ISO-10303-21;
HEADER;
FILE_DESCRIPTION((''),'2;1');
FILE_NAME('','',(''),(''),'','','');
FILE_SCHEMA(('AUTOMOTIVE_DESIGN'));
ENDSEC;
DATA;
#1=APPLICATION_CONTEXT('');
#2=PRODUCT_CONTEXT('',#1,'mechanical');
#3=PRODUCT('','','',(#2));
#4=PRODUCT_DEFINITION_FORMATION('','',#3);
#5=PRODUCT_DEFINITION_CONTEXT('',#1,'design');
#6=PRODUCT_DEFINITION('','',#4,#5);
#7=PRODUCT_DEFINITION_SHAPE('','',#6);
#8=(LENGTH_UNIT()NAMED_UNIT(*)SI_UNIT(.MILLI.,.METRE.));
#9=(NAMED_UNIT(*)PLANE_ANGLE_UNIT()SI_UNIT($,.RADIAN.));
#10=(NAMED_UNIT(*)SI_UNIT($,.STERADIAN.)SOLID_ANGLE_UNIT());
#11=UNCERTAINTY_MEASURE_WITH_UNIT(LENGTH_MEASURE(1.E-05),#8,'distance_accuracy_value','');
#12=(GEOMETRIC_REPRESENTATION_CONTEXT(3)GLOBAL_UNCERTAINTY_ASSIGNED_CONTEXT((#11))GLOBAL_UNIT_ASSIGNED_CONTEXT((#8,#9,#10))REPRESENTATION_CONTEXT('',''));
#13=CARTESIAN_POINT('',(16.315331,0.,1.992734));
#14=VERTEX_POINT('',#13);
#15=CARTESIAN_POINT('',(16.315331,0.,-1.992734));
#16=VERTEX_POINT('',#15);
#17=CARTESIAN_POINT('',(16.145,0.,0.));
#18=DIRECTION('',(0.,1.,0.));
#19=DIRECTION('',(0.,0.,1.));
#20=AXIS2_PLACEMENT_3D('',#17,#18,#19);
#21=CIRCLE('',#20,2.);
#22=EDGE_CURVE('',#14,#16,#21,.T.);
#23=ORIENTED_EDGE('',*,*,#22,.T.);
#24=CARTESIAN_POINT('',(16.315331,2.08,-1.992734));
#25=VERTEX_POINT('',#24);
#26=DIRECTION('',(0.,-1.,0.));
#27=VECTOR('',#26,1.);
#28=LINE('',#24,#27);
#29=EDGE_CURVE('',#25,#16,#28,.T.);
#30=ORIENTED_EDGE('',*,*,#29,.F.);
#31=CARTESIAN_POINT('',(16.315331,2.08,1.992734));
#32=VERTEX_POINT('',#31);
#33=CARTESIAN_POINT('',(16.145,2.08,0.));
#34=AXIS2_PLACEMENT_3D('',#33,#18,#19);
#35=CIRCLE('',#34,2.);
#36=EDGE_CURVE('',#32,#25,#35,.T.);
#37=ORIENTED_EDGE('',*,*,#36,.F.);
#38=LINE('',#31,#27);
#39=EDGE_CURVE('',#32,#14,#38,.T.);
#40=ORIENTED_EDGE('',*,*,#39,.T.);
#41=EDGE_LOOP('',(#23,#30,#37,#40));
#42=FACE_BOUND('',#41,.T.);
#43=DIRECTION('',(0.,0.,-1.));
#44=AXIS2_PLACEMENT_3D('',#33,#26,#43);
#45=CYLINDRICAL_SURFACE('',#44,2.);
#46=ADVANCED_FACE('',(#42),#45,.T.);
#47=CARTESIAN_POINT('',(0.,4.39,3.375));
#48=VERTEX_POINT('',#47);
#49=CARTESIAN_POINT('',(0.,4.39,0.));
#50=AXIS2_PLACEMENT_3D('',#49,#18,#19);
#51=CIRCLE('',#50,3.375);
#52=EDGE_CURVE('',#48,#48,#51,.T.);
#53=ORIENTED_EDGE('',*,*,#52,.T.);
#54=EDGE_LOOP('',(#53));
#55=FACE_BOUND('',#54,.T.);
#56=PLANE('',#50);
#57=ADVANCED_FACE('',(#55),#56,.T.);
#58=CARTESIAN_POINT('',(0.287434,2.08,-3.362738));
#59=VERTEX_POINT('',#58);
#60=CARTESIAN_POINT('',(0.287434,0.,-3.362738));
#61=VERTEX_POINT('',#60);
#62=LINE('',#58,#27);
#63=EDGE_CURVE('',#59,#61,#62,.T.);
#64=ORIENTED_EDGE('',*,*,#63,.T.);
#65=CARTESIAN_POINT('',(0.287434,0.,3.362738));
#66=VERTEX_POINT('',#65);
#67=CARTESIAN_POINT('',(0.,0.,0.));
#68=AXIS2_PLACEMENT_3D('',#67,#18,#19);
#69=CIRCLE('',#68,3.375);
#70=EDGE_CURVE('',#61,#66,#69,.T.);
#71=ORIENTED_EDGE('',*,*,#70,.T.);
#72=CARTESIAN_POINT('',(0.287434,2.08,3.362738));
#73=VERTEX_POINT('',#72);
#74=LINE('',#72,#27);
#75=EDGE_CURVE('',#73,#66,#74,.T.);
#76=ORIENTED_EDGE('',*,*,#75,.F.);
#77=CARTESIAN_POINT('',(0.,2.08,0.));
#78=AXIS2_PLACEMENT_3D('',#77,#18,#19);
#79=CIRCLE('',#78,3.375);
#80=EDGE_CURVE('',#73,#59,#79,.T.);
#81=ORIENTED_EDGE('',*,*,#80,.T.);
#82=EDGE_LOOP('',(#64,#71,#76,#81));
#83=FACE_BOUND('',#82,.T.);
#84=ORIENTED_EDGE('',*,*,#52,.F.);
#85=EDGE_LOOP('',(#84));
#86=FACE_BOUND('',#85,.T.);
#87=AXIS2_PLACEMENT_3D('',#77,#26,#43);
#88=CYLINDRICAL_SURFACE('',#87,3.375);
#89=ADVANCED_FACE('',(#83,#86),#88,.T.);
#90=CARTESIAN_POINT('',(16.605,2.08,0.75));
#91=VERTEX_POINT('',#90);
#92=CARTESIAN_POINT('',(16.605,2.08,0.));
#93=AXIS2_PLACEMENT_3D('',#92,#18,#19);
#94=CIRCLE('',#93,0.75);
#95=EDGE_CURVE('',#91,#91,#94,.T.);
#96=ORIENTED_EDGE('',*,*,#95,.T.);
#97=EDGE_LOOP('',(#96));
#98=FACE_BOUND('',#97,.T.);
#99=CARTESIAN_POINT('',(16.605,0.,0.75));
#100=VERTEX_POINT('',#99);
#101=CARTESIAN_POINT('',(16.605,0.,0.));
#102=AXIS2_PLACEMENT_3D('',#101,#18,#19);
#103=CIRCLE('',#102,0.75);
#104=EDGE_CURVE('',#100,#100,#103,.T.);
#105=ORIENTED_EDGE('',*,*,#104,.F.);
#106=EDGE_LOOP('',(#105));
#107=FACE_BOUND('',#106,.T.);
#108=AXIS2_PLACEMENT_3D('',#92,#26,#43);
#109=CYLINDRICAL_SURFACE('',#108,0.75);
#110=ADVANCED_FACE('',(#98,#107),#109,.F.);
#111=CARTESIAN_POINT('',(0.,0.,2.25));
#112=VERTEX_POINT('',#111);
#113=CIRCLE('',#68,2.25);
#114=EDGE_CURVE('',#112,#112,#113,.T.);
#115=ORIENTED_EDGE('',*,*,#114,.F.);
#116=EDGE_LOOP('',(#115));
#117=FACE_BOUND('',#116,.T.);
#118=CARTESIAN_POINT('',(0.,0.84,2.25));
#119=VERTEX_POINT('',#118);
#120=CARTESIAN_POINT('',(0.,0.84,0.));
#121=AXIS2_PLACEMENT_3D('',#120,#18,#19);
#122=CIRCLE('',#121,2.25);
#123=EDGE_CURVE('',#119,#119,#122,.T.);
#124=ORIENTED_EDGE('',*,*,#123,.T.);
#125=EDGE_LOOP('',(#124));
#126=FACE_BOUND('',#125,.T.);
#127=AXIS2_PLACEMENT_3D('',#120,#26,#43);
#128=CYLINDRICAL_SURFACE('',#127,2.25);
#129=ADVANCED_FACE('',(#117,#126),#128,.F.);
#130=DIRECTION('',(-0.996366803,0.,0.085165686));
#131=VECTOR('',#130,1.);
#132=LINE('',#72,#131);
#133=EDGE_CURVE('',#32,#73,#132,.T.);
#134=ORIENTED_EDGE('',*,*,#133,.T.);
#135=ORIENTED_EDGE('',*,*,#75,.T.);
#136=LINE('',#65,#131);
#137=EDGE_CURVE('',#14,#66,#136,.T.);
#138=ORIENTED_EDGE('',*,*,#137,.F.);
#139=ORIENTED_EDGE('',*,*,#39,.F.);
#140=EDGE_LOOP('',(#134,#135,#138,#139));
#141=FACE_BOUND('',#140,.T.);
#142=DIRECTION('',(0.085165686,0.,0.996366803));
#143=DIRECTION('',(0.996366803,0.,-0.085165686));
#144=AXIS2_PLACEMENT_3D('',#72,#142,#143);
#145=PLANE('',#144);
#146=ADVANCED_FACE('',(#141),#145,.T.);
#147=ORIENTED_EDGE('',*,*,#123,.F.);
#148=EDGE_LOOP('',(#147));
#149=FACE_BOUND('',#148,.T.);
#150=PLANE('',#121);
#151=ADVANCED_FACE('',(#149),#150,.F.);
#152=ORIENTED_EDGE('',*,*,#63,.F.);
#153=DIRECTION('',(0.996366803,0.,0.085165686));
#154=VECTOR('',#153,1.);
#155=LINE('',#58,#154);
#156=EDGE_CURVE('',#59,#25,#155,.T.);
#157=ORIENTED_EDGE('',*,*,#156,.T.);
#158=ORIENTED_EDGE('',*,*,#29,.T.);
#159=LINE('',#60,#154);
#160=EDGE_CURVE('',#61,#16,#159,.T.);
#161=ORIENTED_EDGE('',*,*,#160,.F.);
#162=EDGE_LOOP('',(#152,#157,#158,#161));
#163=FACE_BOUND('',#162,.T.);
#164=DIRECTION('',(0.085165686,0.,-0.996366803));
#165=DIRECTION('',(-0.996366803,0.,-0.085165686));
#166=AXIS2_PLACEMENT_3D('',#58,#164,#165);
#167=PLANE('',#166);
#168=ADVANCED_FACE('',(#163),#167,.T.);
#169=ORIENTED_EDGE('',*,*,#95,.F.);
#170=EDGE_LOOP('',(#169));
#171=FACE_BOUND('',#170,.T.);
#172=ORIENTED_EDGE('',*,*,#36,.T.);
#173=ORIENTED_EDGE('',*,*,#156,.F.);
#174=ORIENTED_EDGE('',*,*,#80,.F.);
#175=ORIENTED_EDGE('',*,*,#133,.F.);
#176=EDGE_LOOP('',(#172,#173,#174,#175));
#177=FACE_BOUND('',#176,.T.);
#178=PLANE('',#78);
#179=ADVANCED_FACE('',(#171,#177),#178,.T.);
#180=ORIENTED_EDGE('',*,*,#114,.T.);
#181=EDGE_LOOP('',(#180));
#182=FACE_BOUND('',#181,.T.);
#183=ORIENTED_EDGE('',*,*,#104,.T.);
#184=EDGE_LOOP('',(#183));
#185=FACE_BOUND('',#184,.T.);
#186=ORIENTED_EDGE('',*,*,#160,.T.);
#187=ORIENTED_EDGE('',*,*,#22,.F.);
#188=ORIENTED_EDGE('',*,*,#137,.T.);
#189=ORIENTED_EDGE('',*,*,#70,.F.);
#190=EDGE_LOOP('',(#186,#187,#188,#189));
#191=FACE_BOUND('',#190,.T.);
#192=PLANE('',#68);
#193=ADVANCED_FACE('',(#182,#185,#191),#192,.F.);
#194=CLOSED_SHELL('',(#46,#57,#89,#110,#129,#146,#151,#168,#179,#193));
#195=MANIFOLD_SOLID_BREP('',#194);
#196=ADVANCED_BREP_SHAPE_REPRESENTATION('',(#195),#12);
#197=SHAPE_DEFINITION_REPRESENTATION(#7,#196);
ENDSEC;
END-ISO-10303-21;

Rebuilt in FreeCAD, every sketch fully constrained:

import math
import FreeCAD as App
import Part
import Sketcher
from FreeCAD import Vector

doc = App.newDocument("Part")
params = doc.addObject("Spreadsheet::Sheet", "Params")
for row, (alias, value) in enumerate([
    ("sketch1_radius", "2 mm"),
    ("sketch1_diameter", "1.5 mm"),
    ("pad1_length", "2.08 mm"),
    ("sketch2_diameter", "6.75 mm"),
    ("pad2_length", "2.31 mm"),
    ("sketch3_diameter", "4.5 mm"),
    ("pocket1_length", "0.84 mm"),
], start=1):
    params.set(f"A{row}", alias)
    params.set(f"B{row}", "=" + value)
    params.setAlias(f"B{row}", alias)

body = doc.addObject("PartDesign::Body", "Body")

# Sketch on XZ plane
sketch1 = body.newObject("Sketcher::SketchObject", "Sketch")
sketch1.AttachmentSupport = (doc.getObject("XZ_Plane"), [""])
sketch1.MapMode = "FlatFace"
sketch1.addGeometry(Part.LineSegment(Vector(16.3, -2, 0), Vector(0.3, -3.4, 0)), False)
sketch1.addGeometry(Part.ArcOfCircle(Part.Circle(Vector(0, 0, 0), Vector(0, 0, 1), 3.4), math.radians(85), math.radians(275)), False)
sketch1.addGeometry(Part.LineSegment(Vector(0.3, 3.4, 0), Vector(16.3, 2, 0)), False)
sketch1.addGeometry(Part.ArcOfCircle(Part.Circle(Vector(16.1, 0, 0), Vector(0, 0, 1), 2), math.radians(-85), math.radians(85)), False)
sketch1.addGeometry(Part.Circle(Vector(16.6, 0, 0), Vector(0, 0, 1), 0.8), False)
sketch1.addConstraint(Sketcher.Constraint("Tangent", 0, 2, 1, 2))
sketch1.addConstraint(Sketcher.Constraint("Tangent", 1, 1, 2, 1))
sketch1.addConstraint(Sketcher.Constraint("Tangent", 2, 2, 3, 2))
sketch1.addConstraint(Sketcher.Constraint("Tangent", 3, 1, 0, 1))
sketch1.addConstraint(Sketcher.Constraint("Coincident", 1, 3, -1, 1))
sketch1.addConstraint(Sketcher.Constraint("PointOnObject", 3, 3, -1))
sketch1.addConstraint(Sketcher.Constraint("PointOnObject", 4, 3, -1))
sketch1.addConstraint(Sketcher.Constraint("Radius", 3, 2.0))
sketch1.addConstraint(Sketcher.Constraint("Diameter", 4, 1.5))
sketch1.addConstraint(Sketcher.Constraint("Radius", 1, 3.375))
sketch1.addConstraint(Sketcher.Constraint("DistanceX", 3, 3, 4, 3, 0.46))
sketch1.addConstraint(Sketcher.Constraint("DistanceX", -1, 1, 3, 3, 16.145))
sketch1.setExpression("Constraints[7]", "Params.sketch1_radius")
sketch1.setExpression("Constraints[8]", "Params.sketch1_diameter")
pad1 = body.newObject("PartDesign::Pad", "Pad")
pad1.Profile = sketch1
pad1.setExpression("Length", "Params.pad1_length")
pad1.Reversed = True

# Sketch on XZ plane
sketch2 = body.newObject("Sketcher::SketchObject", "Sketch001")
sketch2.AttachmentSupport = (doc.getObject("XZ_Plane"), [""])
sketch2.MapMode = "FlatFace"
sketch2.AttachmentOffset = App.Placement(Vector(0, 0, -2.08), App.Rotation())
sketch2.addGeometry(Part.Circle(Vector(0, 0, 0), Vector(0, 0, 1), 3.4), False)
sketch2.addConstraint(Sketcher.Constraint("Coincident", 0, 3, -1, 1))
sketch2.addConstraint(Sketcher.Constraint("Diameter", 0, 6.75))
sketch2.setExpression("Constraints[1]", "Params.sketch2_diameter")
pad2 = body.newObject("PartDesign::Pad", "Pad001")
pad2.Profile = sketch2
pad2.setExpression("Length", "Params.pad2_length")
pad2.Reversed = True

# Sketch on XZ plane
sketch3 = body.newObject("Sketcher::SketchObject", "Sketch002")
sketch3.AttachmentSupport = (doc.getObject("XZ_Plane"), [""])
sketch3.MapMode = "FlatFace"
sketch3.addGeometry(Part.Circle(Vector(0, 0, 0), Vector(0, 0, 1), 2.2), False)
sketch3.addConstraint(Sketcher.Constraint("Coincident", 0, 3, -1, 1))
sketch3.addConstraint(Sketcher.Constraint("Diameter", 0, 4.5))
sketch3.setExpression("Constraints[1]", "Params.sketch3_diameter")
pocket1 = body.newObject("PartDesign::Pocket", "Pocket")
pocket1.Profile = sketch3
pocket1.setExpression("Length", "Params.pocket1_length")

doc.recompute()
